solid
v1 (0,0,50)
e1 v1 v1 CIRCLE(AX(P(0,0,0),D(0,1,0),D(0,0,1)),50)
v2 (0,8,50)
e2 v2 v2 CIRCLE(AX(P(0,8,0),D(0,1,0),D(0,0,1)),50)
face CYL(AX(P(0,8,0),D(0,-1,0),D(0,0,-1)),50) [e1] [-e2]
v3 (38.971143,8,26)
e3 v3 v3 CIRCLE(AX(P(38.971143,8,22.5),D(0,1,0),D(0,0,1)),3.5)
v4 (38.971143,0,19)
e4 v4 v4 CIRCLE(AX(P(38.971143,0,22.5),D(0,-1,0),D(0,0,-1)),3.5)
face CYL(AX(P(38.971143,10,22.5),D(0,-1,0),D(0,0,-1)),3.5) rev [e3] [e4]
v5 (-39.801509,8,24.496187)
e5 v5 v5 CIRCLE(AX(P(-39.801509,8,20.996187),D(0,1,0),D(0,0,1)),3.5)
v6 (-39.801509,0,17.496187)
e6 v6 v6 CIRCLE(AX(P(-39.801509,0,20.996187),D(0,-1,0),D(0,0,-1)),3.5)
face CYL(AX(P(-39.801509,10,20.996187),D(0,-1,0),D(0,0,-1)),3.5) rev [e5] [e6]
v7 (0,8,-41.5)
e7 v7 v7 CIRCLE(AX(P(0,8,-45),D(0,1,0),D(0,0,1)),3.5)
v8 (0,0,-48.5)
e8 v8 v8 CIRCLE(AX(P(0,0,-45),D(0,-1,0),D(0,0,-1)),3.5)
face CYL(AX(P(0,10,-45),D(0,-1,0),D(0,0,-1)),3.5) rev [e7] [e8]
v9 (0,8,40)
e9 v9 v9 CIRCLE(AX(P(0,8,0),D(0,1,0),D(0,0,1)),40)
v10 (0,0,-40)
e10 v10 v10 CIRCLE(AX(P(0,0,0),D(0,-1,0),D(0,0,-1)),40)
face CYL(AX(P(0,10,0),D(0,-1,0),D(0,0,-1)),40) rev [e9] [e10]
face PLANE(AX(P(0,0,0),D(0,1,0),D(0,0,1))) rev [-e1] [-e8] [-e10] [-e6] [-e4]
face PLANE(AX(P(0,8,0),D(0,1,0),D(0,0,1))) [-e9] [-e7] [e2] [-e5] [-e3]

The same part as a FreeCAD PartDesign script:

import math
import FreeCAD as App
import Part
import Sketcher

V = App.Vector
Q = App.Units.Quantity

doc = App.newDocument("Part")
body = doc.addObject("PartDesign::Body", "Body")

# Sketch on XZ plane
sketch1 = body.newObject("Sketcher::SketchObject", "Sketch")
sketch1.AttachmentSupport = (doc.getObject("XZ_Plane"), [""])
sketch1.MapMode = "FlatFace"
sketch1.addGeometry(Part.Circle(V(0, 0, 0), V(0, 0, 1), 50), False)
sketch1.addGeometry(Part.Circle(V(-39.801509, 20.996187, 0), V(0, 0, 1), 2), False)
sketch1.addGeometry(Part.Circle(V(0, -45, 0), V(0, 0, 1), 2), False)
sketch1.addGeometry(Part.Circle(V(0, 27.5, 0), V(0, 0, 1), 2), False)
sketch1.addGeometry(Part.Circle(V(0, 35, 0), V(0, 0, 1), 2), False)
sketch1.addGeometry(Part.Circle(V(38.971143, 22.5, 0), V(0, 0, 1), 2), False)
sketch1.addConstraint(Sketcher.Constraint("Coincident", 0, 3, -1, 1))
sketch1.addConstraint(Sketcher.Constraint("Equal", 1, 2))
sketch1.addConstraint(Sketcher.Constraint("Equal", 2, 3))
sketch1.addConstraint(Sketcher.Constraint("Equal", 3, 4))
sketch1.addConstraint(Sketcher.Constraint("Equal", 4, 5))
sketch1.addConstraint(Sketcher.Constraint("PointOnObject", 2, 3, -2))
sketch1.addConstraint(Sketcher.Constraint("PointOnObject", 3, 3, -2))
sketch1.addConstraint(Sketcher.Constraint("PointOnObject", 4, 3, -2))
sketch1.addConstraint(Sketcher.Constraint("Diameter", 0, Q("100 mm")))
sketch1.addConstraint(Sketcher.Constraint("Diameter", 1, Q("4 mm")))
sketch1.addConstraint(Sketcher.Constraint("DistanceY", 2, 3, -1, 1, Q("45 mm")))
sketch1.addConstraint(Sketcher.Constraint("DistanceY", -1, 1, 4, 3, Q("35 mm")))
sketch1.addConstraint(Sketcher.Constraint("DistanceY", 5, 3, 3, 3, Q("5 mm")))
sketch1.addConstraint(Sketcher.Constraint("DistanceY", -1, 1, 3, 3, Q("27.5 mm")))
sketch1.addConstraint(Sketcher.Constraint("DistanceX", 1, 3, -1, 1, Q("39.801509 mm")))
sketch1.addConstraint(Sketcher.Constraint("DistanceY", -1, 1, 1, 3, Q("20.996187 mm")))
sketch1.addConstraint(Sketcher.Constraint("DistanceX", -1, 1, 5, 3, Q("38.971143 mm")))
pad1 = body.newObject("PartDesign::Pad", "Pad")
pad1.Profile = sketch1
pad1.Length = 8
pad1.Reversed = True

# Sketch on XZ plane
sketch2 = body.newObject("Sketcher::SketchObject", "Sketch001")
sketch2.AttachmentSupport = (doc.getObject("XZ_Plane"), [""])
sketch2.MapMode = "FlatFace"
sketch2.AttachmentOffset = App.Placement(V(0, 0, -8), App.Rotation())
sketch2.addGeometry(Part.LineSegment(V(-6, 39.531216, 0), V(-6, 22.531216, 0)), False)
sketch2.addGeometry(Part.LineSegment(V(-6, 22.531216, 0), V(6, 22.531216, 0)), False)
sketch2.addGeometry(Part.LineSegment(V(6, 22.531216, 0), V(6, 39.531216, 0)), False)
sketch2.addGeometry(Part.ArcOfCircle(Part.Circle(V(0, 0, 0), V(0, 0, 1), 39.98396), math.radians(98.630414), math.radians(441.369586)), False)
sketch2.addConstraint(Sketcher.Constraint("Coincident", 0, 2, 1, 1))
sketch2.addConstraint(Sketcher.Constraint("Coincident", 1, 2, 2, 1))
sketch2.addConstraint(Sketcher.Constraint("Coincident", 2, 2, 3, 2))
sketch2.addConstraint(Sketcher.Constraint("Coincident", 3, 1, 0, 1))
sketch2.addConstraint(Sketcher.Constraint("Vertical", 0))
sketch2.addConstraint(Sketcher.Constraint("Horizontal", 1))
sketch2.addConstraint(Sketcher.Constraint("Vertical", 2))
sketch2.addConstraint(Sketcher.Constraint("Coincident", 3, 3, -1, 1))
sketch2.addConstraint(Sketcher.Constraint("Horizontal", 2, 2, 3, 1))
sketch2.addConstraint(Sketcher.Constraint("DistanceX", 1, 1, 1, 2, Q("12 mm")))
sketch2.addConstraint(Sketcher.Constraint("DistanceY", 0, 2, 0, 1, Q("17 mm")))
sketch2.addConstraint(Sketcher.Constraint("Radius", 3, Q("39.98396 mm")))
pocket1 = body.newObject("PartDesign::Pocket", "Pocket")
pocket1.Profile = sketch2
pocket1.Length = 3
pocket1.Reversed = True

# Sketch on XZ plane
sketch3 = body.newObject("Sketcher::SketchObject", "Sketch002")
sketch3.AttachmentSupport = (doc.getObject("XZ_Plane"), [""])
sketch3.MapMode = "FlatFace"
sketch3.addGeometry(Part.Circle(V(0, 0, 0), V(0, 0, 1), 40), False)
sketch3.addConstraint(Sketcher.Constraint("Coincident", 0, 3, -1, 1))
sketch3.addConstraint(Sketcher.Constraint("Diameter", 0, Q("80 mm")))
pocket2 = body.newObject("PartDesign::Pocket", "Pocket001")
pocket2.Profile = sketch3
pocket2.Length = 10

# Sketch on XZ plane
sketch4 = body.newObject("Sketcher::SketchObject", "Sketch003")
sketch4.AttachmentSupport = (doc.getObject("XZ_Plane"), [""])
sketch4.MapMode = "FlatFace"
sketch4.addGeometry(Part.Circle(V(38.971143, 22.5, 0), V(0, 0, 1), 3.5), False)
sketch4.addGeometry(Part.Circle(V(-39.801509, 20.996187, 0), V(0, 0, 1), 3.5), False)
sketch4.addGeometry(Part.Circle(V(0, -45, 0), V(0, 0, 1), 3.5), False)
sketch4.addConstraint(Sketcher.Constraint("Equal", 0, 1))
sketch4.addConstraint(Sketcher.Constraint("Equal", 1, 2))
sketch4.addConstraint(Sketcher.Constraint("PointOnObject", 2, 3, -2))
sketch4.addConstraint(Sketcher.Constraint("Diameter", 0, Q("7 mm")))
sketch4.addConstraint(Sketcher.Constraint("DistanceY", 2, 3, -1, 1, Q("45 mm")))
sketch4.addConstraint(Sketcher.Constraint("DistanceY", -1, 1, 0, 3, Q("22.5 mm")))
sketch4.addConstraint(Sketcher.Constraint("DistanceX", 1, 3, -1, 1, Q("39.801509 mm")))
sketch4.addConstraint(Sketcher.Constraint("DistanceX", -1, 1, 0, 3, Q("38.971143 mm")))
sketch4.addConstraint(Sketcher.Constraint("DistanceY", -1, 1, 1, 3, Q("20.996187 mm")))
pocket3 = body.newObject("PartDesign::Pocket", "Pocket002")
pocket3.Profile = sketch4
pocket3.Length = 10

doc.recompute()
